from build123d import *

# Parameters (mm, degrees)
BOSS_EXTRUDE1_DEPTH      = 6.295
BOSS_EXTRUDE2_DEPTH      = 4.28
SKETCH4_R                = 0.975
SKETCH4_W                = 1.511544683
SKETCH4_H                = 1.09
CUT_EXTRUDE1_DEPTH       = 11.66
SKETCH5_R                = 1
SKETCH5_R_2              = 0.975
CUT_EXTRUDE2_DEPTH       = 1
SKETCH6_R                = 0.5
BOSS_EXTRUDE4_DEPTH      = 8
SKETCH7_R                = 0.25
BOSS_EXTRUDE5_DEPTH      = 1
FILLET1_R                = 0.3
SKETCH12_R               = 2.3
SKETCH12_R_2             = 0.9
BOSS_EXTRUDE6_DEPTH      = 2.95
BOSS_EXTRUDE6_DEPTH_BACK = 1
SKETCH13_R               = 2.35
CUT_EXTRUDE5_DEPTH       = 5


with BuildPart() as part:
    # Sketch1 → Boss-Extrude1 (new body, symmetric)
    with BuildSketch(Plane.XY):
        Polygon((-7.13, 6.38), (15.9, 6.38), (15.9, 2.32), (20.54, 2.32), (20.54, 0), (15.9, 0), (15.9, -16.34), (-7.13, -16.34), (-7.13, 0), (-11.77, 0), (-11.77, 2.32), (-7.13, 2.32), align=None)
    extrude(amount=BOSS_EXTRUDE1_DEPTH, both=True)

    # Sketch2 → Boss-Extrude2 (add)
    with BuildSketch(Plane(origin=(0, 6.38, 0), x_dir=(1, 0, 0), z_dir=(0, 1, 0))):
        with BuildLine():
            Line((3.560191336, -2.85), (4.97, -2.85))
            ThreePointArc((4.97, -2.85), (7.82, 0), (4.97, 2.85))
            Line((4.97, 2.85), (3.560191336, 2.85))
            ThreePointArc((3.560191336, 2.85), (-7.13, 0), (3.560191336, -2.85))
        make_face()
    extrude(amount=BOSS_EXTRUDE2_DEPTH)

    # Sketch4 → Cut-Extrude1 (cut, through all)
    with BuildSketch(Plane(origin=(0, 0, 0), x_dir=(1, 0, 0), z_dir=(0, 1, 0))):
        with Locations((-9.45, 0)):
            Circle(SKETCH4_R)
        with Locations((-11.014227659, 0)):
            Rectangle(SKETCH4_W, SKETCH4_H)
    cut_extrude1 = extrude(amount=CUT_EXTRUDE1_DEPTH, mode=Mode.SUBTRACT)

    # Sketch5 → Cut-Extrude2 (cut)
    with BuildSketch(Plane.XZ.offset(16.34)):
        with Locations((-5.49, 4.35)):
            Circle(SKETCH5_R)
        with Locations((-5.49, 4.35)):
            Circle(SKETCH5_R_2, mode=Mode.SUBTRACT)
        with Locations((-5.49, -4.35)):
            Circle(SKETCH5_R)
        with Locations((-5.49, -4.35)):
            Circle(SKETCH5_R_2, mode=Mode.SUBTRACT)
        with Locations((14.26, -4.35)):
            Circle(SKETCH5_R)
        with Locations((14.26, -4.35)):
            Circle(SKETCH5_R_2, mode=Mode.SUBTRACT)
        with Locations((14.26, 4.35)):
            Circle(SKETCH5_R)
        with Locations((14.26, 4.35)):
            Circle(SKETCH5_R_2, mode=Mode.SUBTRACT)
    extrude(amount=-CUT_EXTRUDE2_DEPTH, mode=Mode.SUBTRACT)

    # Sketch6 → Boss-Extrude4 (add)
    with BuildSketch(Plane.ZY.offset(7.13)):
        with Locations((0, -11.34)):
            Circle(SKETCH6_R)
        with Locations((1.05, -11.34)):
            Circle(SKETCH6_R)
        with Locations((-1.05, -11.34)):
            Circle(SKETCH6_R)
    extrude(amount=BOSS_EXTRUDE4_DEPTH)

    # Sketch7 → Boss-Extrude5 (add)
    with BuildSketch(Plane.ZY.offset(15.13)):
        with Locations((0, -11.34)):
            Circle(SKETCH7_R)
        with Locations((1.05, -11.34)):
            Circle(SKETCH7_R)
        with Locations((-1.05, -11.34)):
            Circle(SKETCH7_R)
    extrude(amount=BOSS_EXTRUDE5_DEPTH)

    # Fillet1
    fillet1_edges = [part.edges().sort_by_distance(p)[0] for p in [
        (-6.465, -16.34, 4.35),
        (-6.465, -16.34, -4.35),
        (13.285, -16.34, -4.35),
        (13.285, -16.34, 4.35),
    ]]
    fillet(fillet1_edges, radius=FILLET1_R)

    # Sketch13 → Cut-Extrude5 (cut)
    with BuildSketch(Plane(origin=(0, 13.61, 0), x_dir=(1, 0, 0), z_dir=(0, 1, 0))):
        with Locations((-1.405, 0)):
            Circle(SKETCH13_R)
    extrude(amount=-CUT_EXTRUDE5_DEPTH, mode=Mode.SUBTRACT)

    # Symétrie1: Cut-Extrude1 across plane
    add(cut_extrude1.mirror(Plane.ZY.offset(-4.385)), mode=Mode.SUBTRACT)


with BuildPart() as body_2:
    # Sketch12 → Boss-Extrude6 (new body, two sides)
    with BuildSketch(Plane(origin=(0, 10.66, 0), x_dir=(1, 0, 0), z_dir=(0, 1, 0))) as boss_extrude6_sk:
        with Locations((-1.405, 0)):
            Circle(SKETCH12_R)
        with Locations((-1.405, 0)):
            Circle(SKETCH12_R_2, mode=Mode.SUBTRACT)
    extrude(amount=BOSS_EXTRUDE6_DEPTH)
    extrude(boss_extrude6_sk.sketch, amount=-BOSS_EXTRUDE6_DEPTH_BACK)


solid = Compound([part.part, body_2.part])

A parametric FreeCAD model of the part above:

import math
import FreeCAD as App
import Part
import Sketcher
Q = App.Units.Quantity


def edges_at(feature, points):
    """Names of the edges that pass closest to the given points."""
    edges = feature.Shape.Edges
    near = lambda p: min(range(len(edges)), key=lambda i: edges[i].distToShape(Part.Vertex(*p))[0])
    return sorted({f"Edge{near(p) + 1}" for p in points})


def add_polygon(sketch, points):
    """Adds a closed chain of lines whose ends are joined by coincident constraints."""
    first, n = sketch.GeometryCount, len(points)
    for a, b in zip(points, points[1:] + points[:1]):
        sketch.addGeometry(Part.LineSegment(App.Vector(*a, 0), App.Vector(*b, 0)), False)
    for i in range(n):
        sketch.addConstraint(Sketcher.Constraint("Coincident", first + i, 2, first + (i + 1) % n, 1))

doc = App.newDocument("Part")
body = doc.addObject("PartDesign::Body", "Body")

sketch1 = body.newObject("Sketcher::SketchObject", "Sketch")
sketch1.AttachmentSupport = (doc.getObject("XY_Plane"), [""])
sketch1.MapMode = "FlatFace"
add_polygon(sketch1, [(15.9, 6.38), (-7.13, 6.38), (-7.13, 2.32), (-11.77, 2.32), (-11.77, 0), (-7.13, 0), (-7.13, -16.34), (15.9, -16.34), (15.9, 0), (20.54, 0), (20.54, 2.32), (15.9, 2.32)])
sketch1.addConstraint(Sketcher.Constraint("Horizontal", 0))
sketch1.addConstraint(Sketcher.Constraint("Vertical", 1))
sketch1.addConstraint(Sketcher.Constraint("Horizontal", 2))
sketch1.addConstraint(Sketcher.Constraint("Vertical", 3))
sketch1.addConstraint(Sketcher.Constraint("Horizontal", 4))
sketch1.addConstraint(Sketcher.Constraint("Vertical", 5))
sketch1.addConstraint(Sketcher.Constraint("Horizontal", 6))
sketch1.addConstraint(Sketcher.Constraint("Vertical", 7))
sketch1.addConstraint(Sketcher.Constraint("Horizontal", 8))
sketch1.addConstraint(Sketcher.Constraint("Vertical", 9))
sketch1.addConstraint(Sketcher.Constraint("Horizontal", 10))
sketch1.addConstraint(Sketcher.Constraint("Vertical", 11))
sketch1.addConstraint(Sketcher.Constraint("PointOnObject", 3, 2, -1))
sketch1.addConstraint(Sketcher.Constraint("PointOnObject", 7, 2, -1))
sketch1.addConstraint(Sketcher.Constraint("Horizontal", 2, 2, 9, 2))
sketch1.addConstraint(Sketcher.Constraint("Vertical", 1, 2, 4, 2))
sketch1.addConstraint(Sketcher.Constraint("Vertical", 7, 2, 10, 2))
sketch1.addConstraint(Sketcher.Constraint("Equal", 4, 8))
sketch1.addConstraint(Sketcher.Constraint("DistanceX", 0, 2, 0, 1, Q("23.03 mm")))
sketch1.addConstraint(Sketcher.Constraint("DistanceX", 2, 2, 2, 1, Q("4.64 mm")))
sketch1.addConstraint(Sketcher.Constraint("DistanceY", 1, 2, 1, 1, Q("4.06 mm")))
sketch1.addConstraint(Sketcher.Constraint("DistanceY", 3, 2, 3, 1, Q("2.32 mm")))
sketch1.addConstraint(Sketcher.Constraint("DistanceY", 5, 2, 5, 1, Q("16.34 mm")))
sketch1.addConstraint(Sketcher.Constraint("DistanceX", -1, 1, 6, 2, Q("15.9 mm")))
pad1 = body.newObject("PartDesign::Pad", "Pad")
pad1.Profile = sketch1
pad1.Length = 12.59
pad1.Midplane = True

sketch2 = body.newObject("Sketcher::SketchObject", "Sketch001")
sketch2.AttachmentSupport = (doc.getObject("XZ_Plane"), [""])
sketch2.MapMode = "FlatFace"
sketch2.AttachmentOffset = App.Placement(App.Vector(0, 0, -6.38), App.Rotation())
sketch2.addGeometry(Part.LineSegment(App.Vector(3.560191, 2.85, 0), App.Vector(4.97, 2.85, 0)), False)
sketch2.addGeometry(Part.ArcOfCircle(Part.Circle(App.Vector(4.97, 0, 0), App.Vector(0, 0, 1), 2.85), math.radians(-90), math.radians(90)), False)
sketch2.addGeometry(Part.LineSegment(App.Vector(4.97, -2.85, 0), App.Vector(3.560191, -2.85, 0)), False)
sketch2.addGeometry(Part.ArcOfCircle(Part.Circle(App.Vector(-1.405, 0, 0), App.Vector(0, 0, 1), 5.725), math.radians(29.855652), math.radians(330.144348)), False)
sketch2.addConstraint(Sketcher.Constraint("Tangent", 0, 2, 1, 2))
sketch2.addConstraint(Sketcher.Constraint("Tangent", 1, 1, 2, 1))
sketch2.addConstraint(Sketcher.Constraint("Coincident", 2, 2, 3, 2))
sketch2.addConstraint(Sketcher.Constraint("Coincident", 3, 1, 0, 1))
sketch2.addConstraint(Sketcher.Constraint("Horizontal", 0))
sketch2.addConstraint(Sketcher.Constraint("Horizontal", 2))
sketch2.addConstraint(Sketcher.Constraint("Symmetric", 2, 2, 3, 1, -1))
sketch2.addConstraint(Sketcher.Constraint("Radius", 1, Q("2.85 mm")))
sketch2.addConstraint(Sketcher.Constraint("Radius", 3, Q("5.725 mm")))
sketch2.addConstraint(Sketcher.Constraint("DistanceX", -1, 1, 1, 3, Q("4.97 mm")))
sketch2.addConstraint(Sketcher.Constraint("DistanceX", 3, 3, -1, 1, Q("1.405 mm")))
pad2 = body.newObject("PartDesign::Pad", "Pad001")
pad2.Profile = sketch2
pad2.Length = 4.28
pad2.Reversed = True

sketch3 = body.newObject("Sketcher::SketchObject", "Sketch002")
sketch3.AttachmentSupport = (doc.getObject("XZ_Plane"), [""])
sketch3.MapMode = "FlatFace"
sketch3.addGeometry(Part.ArcOfCircle(Part.Circle(App.Vector(-9.45, 0, 0), App.Vector(0, 0, 1), 0.975), math.radians(-146.015103), math.radians(146.015103)), False)
sketch3.addGeometry(Part.LineSegment(App.Vector(-10.258455, -0.545, 0), App.Vector(-11.77, -0.545, 0)), False)
sketch3.addGeometry(Part.LineSegment(App.Vector(-11.77, -0.545, 0), App.Vector(-11.77, 0.545, 0)), False)
sketch3.addGeometry(Part.LineSegment(App.Vector(-11.77, 0.545, 0), App.Vector(-10.258455, 0.545, 0)), False)
sketch3.addConstraint(Sketcher.Constraint("Coincident", 0, 1, 1, 1))
sketch3.addConstraint(Sketcher.Constraint("Coincident", 1, 2, 2, 1))
sketch3.addConstraint(Sketcher.Constraint("Coincident", 2, 2, 3, 1))
sketch3.addConstraint(Sketcher.Constraint("Coincident", 3, 2, 0, 2))
sketch3.addConstraint(Sketcher.Constraint("Horizontal", 1))
sketch3.addConstraint(Sketcher.Constraint("Vertical", 2))
sketch3.addConstraint(Sketcher.Constraint("Horizontal", 3))
sketch3.addConstraint(Sketcher.Constraint("Symmetric", 0, 1, 3, 2, -1))
sketch3.addConstraint(Sketcher.Constraint("Radius", 0, Q("0.975 mm")))
sketch3.addConstraint(Sketcher.Constraint("DistanceY", 2, 1, 2, 2, Q("1.09 mm")))
sketch3.addConstraint(Sketcher.Constraint("DistanceX", 0, 3, -1, 1, Q("9.45 mm")))
sketch3.addConstraint(Sketcher.Constraint("DistanceX", 1, 2, -1, 1, Q("11.77 mm")))
pocket1 = body.newObject("PartDesign::Pocket", "Pocket")
pocket1.Profile = sketch3
pocket1.Type = "ThroughAll"

sketch4 = body.newObject("Sketcher::SketchObject", "Sketch003")
sketch4.AttachmentSupport = (doc.getObject("XZ_Plane"), [""])
sketch4.MapMode = "FlatFace"
sketch4.AttachmentOffset = App.Placement(App.Vector(0, 0, 16.34), App.Rotation())
sketch4.addGeometry(Part.Circle(App.Vector(-5.49, 4.35, 0), App.Vector(0, 0, 1), 1), False)
sketch4.addGeometry(Part.Circle(App.Vector(-5.49, 4.35, 0), App.Vector(0, 0, 1), 0.975), False)
sketch4.addGeometry(Part.Circle(App.Vector(-5.49, -4.35, 0), App.Vector(0, 0, 1), 1), False)
sketch4.addGeometry(Part.Circle(App.Vector(-5.49, -4.35, 0), App.Vector(0, 0, 1), 0.975), False)
sketch4.addGeometry(Part.Circle(App.Vector(14.26, -4.35, 0), App.Vector(0, 0, 1), 1), False)
sketch4.addGeometry(Part.Circle(App.Vector(14.26, -4.35, 0), App.Vector(0, 0, 1), 0.975), False)
sketch4.addGeometry(Part.Circle(App.Vector(14.26, 4.35, 0), App.Vector(0, 0, 1), 1), False)
sketch4.addGeometry(Part.Circle(App.Vector(14.26, 4.35, 0), App.Vector(0, 0, 1), 0.975), False)
sketch4.addConstraint(Sketcher.Constraint("Coincident", 1, 3, 0, 3))
sketch4.addConstraint(Sketcher.Constraint("Coincident", 3, 3, 2, 3))
sketch4.addConstraint(Sketcher.Constraint("Coincident", 5, 3, 4, 3))
sketch4.addConstraint(Sketcher.Constraint("Coincident", 7, 3, 6, 3))
sketch4.addConstraint(Sketcher.Constraint("Equal", 0, 2))
sketch4.addConstraint(Sketcher.Constraint("Equal", 1, 3))
sketch4.addConstraint(Sketcher.Constraint("Equal", 2, 4))
sketch4.addConstraint(Sketcher.Constraint("Equal", 3, 5))
sketch4.addConstraint(Sketcher.Constraint("Equal", 4, 6))
sketch4.addConstraint(Sketcher.Constraint("Equal", 5, 7))
sketch4.addConstraint(Sketcher.Constraint("Symmetric", 0, 3, 2, 3, -1))
sketch4.addConstraint(Sketcher.Constraint("Symmetric", 4, 3, 6, 3, -1))
sketch4.addConstraint(Sketcher.Constraint("Horizontal", 3, 3, 4, 3))
sketch4.addConstraint(Sketcher.Constraint("Diameter", 0, Q("2 mm")))
sketch4.addConstraint(Sketcher.Constraint("Diameter", 1, Q("1.95 mm")))
sketch4.addConstraint(Sketcher.Constraint("DistanceY", 2, 3, 0, 3, Q("8.7 mm")))
sketch4.addConstraint(Sketcher.Constraint("DistanceX", 0, 3, -1, 1, Q("5.49 mm")))
sketch4.addConstraint(Sketcher.Constraint("DistanceX", -1, 1, 4, 3, Q("14.26 mm")))
pocket2 = body.newObject("PartDesign::Pocket", "Pocket001")
pocket2.Profile = sketch4
pocket2.Length = 1

sketch5 = body.newObject("Sketcher::SketchObject", "Sketch004")
sketch5.AttachmentSupport = (doc.getObject("YZ_Plane"), [""])
sketch5.MapMode = "FlatFace"
sketch5.AttachmentOffset = App.Placement(App.Vector(0, 0, -7.13), App.Rotation())
sketch5.addGeometry(Part.Circle(App.Vector(-11.34, 0, 0), App.Vector(0, 0, 1), 0.5), False)
sketch5.addGeometry(Part.Circle(App.Vector(-11.34, 1.05, 0), App.Vector(0, 0, 1), 0.5), False)
sketch5.addGeometry(Part.Circle(App.Vector(-11.34, -1.05, 0), App.Vector(0, 0, 1), 0.5), False)
sketch5.addConstraint(Sketcher.Constraint("Equal", 0, 1))
sketch5.addConstraint(Sketcher.Constraint("Equal", 1, 2))
sketch5.addConstraint(Sketcher.Constraint("Symmetric", 1, 3, 2, 3, -1))
sketch5.addConstraint(Sketcher.Constraint("PointOnObject", 0, 3, -1))
sketch5.addConstraint(Sketcher.Constraint("Vertical", 0, 3, 1, 3))
sketch5.addConstraint(Sketcher.Constraint("Diameter", 0, Q("1 mm")))
sketch5.addConstraint(Sketcher.Constraint("DistanceY", 2, 3, 1, 3, Q("2.1 mm")))
sketch5.addConstraint(Sketcher.Constraint("DistanceX", 0, 3, -1, 1, Q("11.34 mm")))
pad3 = body.newObject("PartDesign::Pad", "Pad002")
pad3.Profile = sketch5
pad3.Length = 8
pad3.Reversed = True

sketch6 = body.newObject("Sketcher::SketchObject", "Sketch005")
sketch6.AttachmentSupport = (doc.getObject("YZ_Plane"), [""])
sketch6.MapMode = "FlatFace"
sketch6.AttachmentOffset = App.Placement(App.Vector(0, 0, -15.13), App.Rotation())
sketch6.addGeometry(Part.Circle(App.Vector(-11.34, 0, 0), App.Vector(0, 0, 1), 0.25), False)
sketch6.addGeometry(Part.Circle(App.Vector(-11.34, 1.05, 0), App.Vector(0, 0, 1), 0.25), False)
sketch6.addGeometry(Part.Circle(App.Vector(-11.34, -1.05, 0), App.Vector(0, 0, 1), 0.25), False)
sketch6.addConstraint(Sketcher.Constraint("Equal", 0, 1))
sketch6.addConstraint(Sketcher.Constraint("Equal", 1, 2))
sketch6.addConstraint(Sketcher.Constraint("Symmetric", 1, 3, 2, 3, -1))
sketch6.addConstraint(Sketcher.Constraint("PointOnObject", 0, 3, -1))
sketch6.addConstraint(Sketcher.Constraint("Vertical", 0, 3, 1, 3))
sketch6.addConstraint(Sketcher.Constraint("Diameter", 0, Q("0.5 mm")))
sketch6.addConstraint(Sketcher.Constraint("DistanceY", 2, 3, 1, 3, Q("2.1 mm")))
sketch6.addConstraint(Sketcher.Constraint("DistanceX", 0, 3, -1, 1, Q("11.34 mm")))
pad4 = body.newObject("PartDesign::Pad", "Pad003")
pad4.Profile = sketch6
pad4.Length = 1
pad4.Reversed = True
doc.recompute()

fillet = body.newObject("PartDesign::Fillet", "Fillet")
fillet.Base = (pad4, edges_at(pad4, [
    (-6.465, -16.34, 4.35),
    (-6.465, -16.34, -4.35),
    (13.285, -16.34, -4.35),
    (13.285, -16.34, 4.35),
]))
fillet.Radius = 0.3

sketch7 = body.newObject("Sketcher::SketchObject", "Sketch006")
sketch7.AttachmentSupport = (doc.getObject("XZ_Plane"), [""])
sketch7.MapMode = "FlatFace"
sketch7.AttachmentOffset = App.Placement(App.Vector(0, 0, -13.61), App.Rotation())
sketch7.addGeometry(Part.Circle(App.Vector(-1.405, 0, 0), App.Vector(0, 0, 1), 2.35), False)
sketch7.addConstraint(Sketcher.Constraint("PointOnObject", 0, 3, -1))
sketch7.addConstraint(Sketcher.Constraint("Diameter", 0, Q("4.7 mm")))
sketch7.addConstraint(Sketcher.Constraint("DistanceX", 0, 3, -1, 1, Q("1.405 mm")))
pocket3 = body.newObject("PartDesign::Pocket", "Pocket002")
pocket3.Profile = sketch7
pocket3.Length = 5
pocket3.Reversed = True
doc.recompute()

datumplane = body.newObject("PartDesign::Plane", "DatumPlane")
datumplane.AttachmentSupport = (doc.getObject("YZ_Plane"), [""])
datumplane.MapMode = "FlatFace"
datumplane.AttachmentOffset = App.Placement(App.Vector(0, 0, 4.385), App.Rotation())
mirrored = body.newObject("PartDesign::Mirrored", "Mirrored")
mirrored.Originals = [pocket1]
mirrored.MirrorPlane = (datumplane, [""])
body.Tip = mirrored
body2 = doc.addObject("PartDesign::Body", "Body001")

sketch8 = body2.newObject("Sketcher::SketchObject", "Sketch007")
sketch8.AttachmentSupport = (doc.getObject("XZ_Plane001"), [""])
sketch8.MapMode = "FlatFace"
sketch8.AttachmentOffset = App.Placement(App.Vector(0, 0, -10.66), App.Rotation())
sketch8.addGeometry(Part.Circle(App.Vector(-1.405, 0, 0), App.Vector(0, 0, 1), 2.3), False)
sketch8.addGeometry(Part.Circle(App.Vector(-1.405, 0, 0), App.Vector(0, 0, 1), 0.9), False)
sketch8.addConstraint(Sketcher.Constraint("Coincident", 1, 3, 0, 3))
sketch8.addConstraint(Sketcher.Constraint("PointOnObject", 0, 3, -1))
sketch8.addConstraint(Sketcher.Constraint("Diameter", 0, Q("4.6 mm")))
sketch8.addConstraint(Sketcher.Constraint("Diameter", 1, Q("1.8 mm")))
sketch8.addConstraint(Sketcher.Constraint("DistanceX", 0, 3, -1, 1, Q("1.405 mm")))
pad5 = body2.newObject("PartDesign::Pad", "Pad004")
pad5.Profile = sketch8
pad5.Type = "TwoLengths"
pad5.Length = 2.95
pad5.Length2 = 1
pad5.Reversed = True

doc.recompute()
